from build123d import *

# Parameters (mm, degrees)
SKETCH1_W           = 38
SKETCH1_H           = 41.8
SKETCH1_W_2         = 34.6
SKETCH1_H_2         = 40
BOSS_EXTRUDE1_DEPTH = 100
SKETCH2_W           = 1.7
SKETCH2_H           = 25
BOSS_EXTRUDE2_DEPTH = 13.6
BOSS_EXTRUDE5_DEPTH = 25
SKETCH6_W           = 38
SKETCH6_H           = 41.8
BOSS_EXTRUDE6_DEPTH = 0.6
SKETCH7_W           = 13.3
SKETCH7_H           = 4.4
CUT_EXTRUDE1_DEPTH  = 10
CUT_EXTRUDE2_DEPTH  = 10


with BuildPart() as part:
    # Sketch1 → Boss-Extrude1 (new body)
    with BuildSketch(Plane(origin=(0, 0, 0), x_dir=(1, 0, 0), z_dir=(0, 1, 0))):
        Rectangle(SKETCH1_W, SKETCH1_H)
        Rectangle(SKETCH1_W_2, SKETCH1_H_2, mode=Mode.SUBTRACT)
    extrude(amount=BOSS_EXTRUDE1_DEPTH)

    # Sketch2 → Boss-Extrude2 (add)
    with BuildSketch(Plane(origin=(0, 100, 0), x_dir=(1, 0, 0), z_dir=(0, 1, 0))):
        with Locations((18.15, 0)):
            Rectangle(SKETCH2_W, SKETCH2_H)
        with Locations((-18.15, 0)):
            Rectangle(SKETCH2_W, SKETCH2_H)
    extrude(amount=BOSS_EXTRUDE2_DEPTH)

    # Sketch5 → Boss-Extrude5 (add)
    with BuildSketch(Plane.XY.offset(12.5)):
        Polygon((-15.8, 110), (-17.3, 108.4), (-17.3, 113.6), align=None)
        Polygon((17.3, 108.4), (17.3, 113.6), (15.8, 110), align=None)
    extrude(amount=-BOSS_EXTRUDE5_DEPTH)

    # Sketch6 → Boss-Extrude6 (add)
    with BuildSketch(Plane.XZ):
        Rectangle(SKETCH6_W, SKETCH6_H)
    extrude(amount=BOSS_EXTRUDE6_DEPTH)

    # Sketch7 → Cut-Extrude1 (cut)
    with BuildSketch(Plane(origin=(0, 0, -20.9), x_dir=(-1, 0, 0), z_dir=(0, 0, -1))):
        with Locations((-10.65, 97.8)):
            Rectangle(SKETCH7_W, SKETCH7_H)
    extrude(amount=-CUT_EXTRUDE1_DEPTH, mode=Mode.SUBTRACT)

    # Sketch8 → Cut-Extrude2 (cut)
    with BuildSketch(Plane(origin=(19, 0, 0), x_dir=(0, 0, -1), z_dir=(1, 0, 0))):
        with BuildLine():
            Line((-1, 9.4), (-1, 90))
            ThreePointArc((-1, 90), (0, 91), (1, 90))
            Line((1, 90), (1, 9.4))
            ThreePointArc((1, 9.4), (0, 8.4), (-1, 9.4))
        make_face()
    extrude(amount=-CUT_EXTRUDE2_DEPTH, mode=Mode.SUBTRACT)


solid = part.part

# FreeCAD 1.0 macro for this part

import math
import FreeCAD as App
import Part
import Sketcher

doc = App.newDocument("Part")
body = doc.addObject("PartDesign::Body", "Body")

# Sketch on XZ plane
sketch1 = body.newObject("Sketcher::SketchObject", "Sketch")
sketch1.AttachmentSupport = (doc.getObject("XZ_Plane"), [""])
sketch1.MapMode = "FlatFace"
sketch1.addGeometry(Part.LineSegment(App.Vector(-19, -21, 0), App.Vector(-19, 21, 0)), False)
sketch1.addGeometry(Part.LineSegment(App.Vector(-19, 21, 0), App.Vector(19, 21, 0)), False)
sketch1.addGeometry(Part.LineSegment(App.Vector(19, 21, 0), App.Vector(19, -21, 0)), False)
sketch1.addGeometry(Part.LineSegment(App.Vector(19, -21, 0), App.Vector(-19, -21, 0)), False)
sketch1.addGeometry(Part.LineSegment(App.Vector(17, 20, 0), App.Vector(-17, 20, 0)), False)
sketch1.addGeometry(Part.LineSegment(App.Vector(-17, 20, 0), App.Vector(-17, -20, 0)), False)
sketch1.addGeometry(Part.LineSegment(App.Vector(-17, -20, 0), App.Vector(17, -20, 0)), False)
sketch1.addGeometry(Part.LineSegment(App.Vector(17, -20, 0), App.Vector(17, 20, 0)), False)
sketch1.addConstraint(Sketcher.Constraint("Coincident", 0, 2, 1, 1))
sketch1.addConstraint(Sketcher.Constraint("Coincident", 1, 2, 2, 1))
sketch1.addConstraint(Sketcher.Constraint("Coincident", 2, 2, 3, 1))
sketch1.addConstraint(Sketcher.Constraint("Coincident", 3, 2, 0, 1))
sketch1.addConstraint(Sketcher.Constraint("Coincident", 4, 2, 5, 1))
sketch1.addConstraint(Sketcher.Constraint("Coincident", 5, 2, 6, 1))
sketch1.addConstraint(Sketcher.Constraint("Coincident", 6, 2, 7, 1))
sketch1.addConstraint(Sketcher.Constraint("Coincident", 7, 2, 4, 1))
sketch1.addConstraint(Sketcher.Constraint("Vertical", 0))
sketch1.addConstraint(Sketcher.Constraint("Horizontal", 1))
sketch1.addConstraint(Sketcher.Constraint("Vertical", 2))
sketch1.addConstraint(Sketcher.Constraint("Horizontal", 3))
sketch1.addConstraint(Sketcher.Constraint("Horizontal", 4))
sketch1.addConstraint(Sketcher.Constraint("Vertical", 5))
sketch1.addConstraint(Sketcher.Constraint("Horizontal", 6))
sketch1.addConstraint(Sketcher.Constraint("Vertical", 7))
sketch1.addConstraint(Sketcher.Constraint("Symmetric", 0, 2, 2, 2, -1, 1))
sketch1.addConstraint(Sketcher.Constraint("Symmetric", 4, 2, 6, 2, -1, 1))
sketch1.addConstraint(Sketcher.Constraint("DistanceX", 1, 1, 1, 2, 38.0))
sketch1.addConstraint(Sketcher.Constraint("DistanceY", 5, 2, 5, 1, 40.0))
sketch1.addConstraint(Sketcher.Constraint("DistanceX", 4, 2, 4, 1, 34.6))
sketch1.addConstraint(Sketcher.Constraint("DistanceY", 0, 1, 0, 2, 41.8))
pad1 = body.newObject("PartDesign::Pad", "Pad")
pad1.Profile = sketch1
pad1.Length = 100
pad1.Reversed = True

# Sketch on XZ plane
sketch2 = body.newObject("Sketcher::SketchObject", "Sketch001")
sketch2.AttachmentSupport = (doc.getObject("XZ_Plane"), [""])
sketch2.MapMode = "FlatFace"
sketch2.AttachmentOffset = App.Placement(App.Vector(0, 0, -100), App.Rotation())
sketch2.addGeometry(Part.LineSegment(App.Vector(17.3, -12.5, 0), App.Vector(17.3, 12.5, 0)), False)
sketch2.addGeometry(Part.LineSegment(App.Vector(17.3, 12.5, 0), App.Vector(19, 12.5, 0)), False)
sketch2.addGeometry(Part.LineSegment(App.Vector(19, 12.5, 0), App.Vector(19, -12.5, 0)), False)
sketch2.addGeometry(Part.LineSegment(App.Vector(19, -12.5, 0), App.Vector(17.3, -12.5, 0)), False)
sketch2.addGeometry(Part.LineSegment(App.Vector(-19, -12.5, 0), App.Vector(-19, 12.5, 0)), False)
sketch2.addGeometry(Part.LineSegment(App.Vector(-19, 12.5, 0), App.Vector(-17.3, 12.5, 0)), False)
sketch2.addGeometry(Part.LineSegment(App.Vector(-17.3, 12.5, 0), App.Vector(-17.3, -12.5, 0)), False)
sketch2.addGeometry(Part.LineSegment(App.Vector(-17.3, -12.5, 0), App.Vector(-19, -12.5, 0)), False)
sketch2.addConstraint(Sketcher.Constraint("Coincident", 0, 2, 1, 1))
sketch2.addConstraint(Sketcher.Constraint("Coincident", 1, 2, 2, 1))
sketch2.addConstraint(Sketcher.Constraint("Coincident", 2, 2, 3, 1))
sketch2.addConstraint(Sketcher.Constraint("Coincident", 3, 2, 0, 1))
sketch2.addConstraint(Sketcher.Constraint("Coincident", 4, 2, 5, 1))
sketch2.addConstraint(Sketcher.Constraint("Coincident", 5, 2, 6, 1))
sketch2.addConstraint(Sketcher.Constraint("Coincident", 6, 2, 7, 1))
sketch2.addConstraint(Sketcher.Constraint("Coincident", 7, 2, 4, 1))
sketch2.addConstraint(Sketcher.Constraint("Vertical", 0))
sketch2.addConstraint(Sketcher.Constraint("Horizontal", 1))
sketch2.addConstraint(Sketcher.Constraint("Vertical", 2))
sketch2.addConstraint(Sketcher.Constraint("Horizontal", 3))
sketch2.addConstraint(Sketcher.Constraint("Vertical", 4))
sketch2.addConstraint(Sketcher.Constraint("Horizontal", 5))
sketch2.addConstraint(Sketcher.Constraint("Vertical", 6))
sketch2.addConstraint(Sketcher.Constraint("Horizontal", 7))
sketch2.addConstraint(Sketcher.Constraint("Symmetric", 2, 2, 4, 2, -1, 1))
sketch2.addConstraint(Sketcher.Constraint("Symmetric", 0, 2, 6, 2, -1, 1))
sketch2.addConstraint(Sketcher.Constraint("Horizontal", 1, 2, 4, 2))
sketch2.addConstraint(Sketcher.Constraint("DistanceY", 0, 1, 0, 2, 25.0))
sketch2.addConstraint(Sketcher.Constraint("DistanceX", 1, 1, 1, 2, 1.7))
sketch2.addConstraint(Sketcher.Constraint("DistanceX", -1, 1, 1, 2, 19.0))
pad2 = body.newObject("PartDesign::Pad", "Pad001")
pad2.Profile = sketch2
pad2.Length = 13.6
pad2.Reversed = True

# Sketch on XY plane
sketch3 = body.newObject("Sketcher::SketchObject", "Sketch002")
sketch3.AttachmentSupport = (doc.getObject("XY_Plane"), [""])
sketch3.MapMode = "FlatFace"
sketch3.AttachmentOffset = App.Placement(App.Vector(0, 0, 12.5), App.Rotation())
sketch3.addGeometry(Part.LineSegment(App.Vector(-17.3, 108.4, 0), App.Vector(-15.8, 110, 0)), False)
sketch3.addGeometry(Part.LineSegment(App.Vector(-15.8, 110, 0), App.Vector(-17.3, 113.6, 0)), False)
sketch3.addGeometry(Part.LineSegment(App.Vector(-17.3, 113.6, 0), App.Vector(-17.3, 108.4, 0)), False)
sketch3.addGeometry(Part.LineSegment(App.Vector(17.3, 108.4, 0), App.Vector(17.3, 113.6, 0)), False)
sketch3.addGeometry(Part.LineSegment(App.Vector(17.3, 113.6, 0), App.Vector(15.8, 110, 0)), False)
sketch3.addGeometry(Part.LineSegment(App.Vector(15.8, 110, 0), App.Vector(17.3, 108.4, 0)), False)
sketch3.addConstraint(Sketcher.Constraint("Coincident", 0, 2, 1, 1))
sketch3.addConstraint(Sketcher.Constraint("Coincident", 1, 2, 2, 1))
sketch3.addConstraint(Sketcher.Constraint("Coincident", 2, 2, 0, 1))
sketch3.addConstraint(Sketcher.Constraint("Coincident", 3, 2, 4, 1))
sketch3.addConstraint(Sketcher.Constraint("Coincident", 4, 2, 5, 1))
sketch3.addConstraint(Sketcher.Constraint("Coincident", 5, 2, 3, 1))
sketch3.addConstraint(Sketcher.Constraint("Vertical", 2))
sketch3.addConstraint(Sketcher.Constraint("Vertical", 3))
sketch3.addConstraint(Sketcher.Constraint("Symmetric", 1, 2, 3, 2, -2))
sketch3.addConstraint(Sketcher.Constraint("Symmetric", 0, 2, 4, 2, -2))
sketch3.addConstraint(Sketcher.Constraint("Horizontal", 2, 2, 5, 2))
sketch3.addConstraint(Sketcher.Constraint("DistanceY", 2, 2, 2, 1, 5.2))
sketch3.addConstraint(Sketcher.Constraint("DistanceY", -1, 1, 0, 2, 110.0))
sketch3.addConstraint(Sketcher.Constraint("Distance", 1, 3.9))
sketch3.addConstraint(Sketcher.Constraint("DistanceX", 0, 2, -1, 1, 15.8))
sketch3.addConstraint(Sketcher.Constraint("DistanceX", 1, 2, -1, 1, 17.3))
pad3 = body.newObject("PartDesign::Pad", "Pad002")
pad3.Profile = sketch3
pad3.Length = 25
pad3.Reversed = True

# Sketch on XZ plane
sketch4 = body.newObject("Sketcher::SketchObject", "Sketch003")
sketch4.AttachmentSupport = (doc.getObject("XZ_Plane"), [""])
sketch4.MapMode = "FlatFace"
sketch4.addGeometry(Part.LineSegment(App.Vector(-19, 21, 0), App.Vector(-19, -21, 0)), False)
sketch4.addGeometry(Part.LineSegment(App.Vector(-19, -21, 0), App.Vector(19, -21, 0)), False)
sketch4.addGeometry(Part.LineSegment(App.Vector(19, -21, 0), App.Vector(19, 21, 0)), False)
sketch4.addGeometry(Part.LineSegment(App.Vector(19, 21, 0), App.Vector(-19, 21, 0)), False)
sketch4.addConstraint(Sketcher.Constraint("Coincident", 0, 2, 1, 1))
sketch4.addConstraint(Sketcher.Constraint("Coincident", 1, 2, 2, 1))
sketch4.addConstraint(Sketcher.Constraint("Coincident", 2, 2, 3, 1))
sketch4.addConstraint(Sketcher.Constraint("Coincident", 3, 2, 0, 1))
sketch4.addConstraint(Sketcher.Constraint("Vertical", 0))
sketch4.addConstraint(Sketcher.Constraint("Horizontal", 1))
sketch4.addConstraint(Sketcher.Constraint("Vertical", 2))
sketch4.addConstraint(Sketcher.Constraint("Horizontal", 3))
sketch4.addConstraint(Sketcher.Constraint("Symmetric", 0, 2, 2, 2, -1, 1))
sketch4.addConstraint(Sketcher.Constraint("DistanceX", 1, 1, 1, 2, 38.0))
sketch4.addConstraint(Sketcher.Constraint("DistanceY", 0, 2, 0, 1, 41.8))
pad4 = body.newObject("PartDesign::Pad", "Pad003")
pad4.Profile = sketch4
pad4.Length = 0.6

# Sketch on XY plane
sketch5 = body.newObject("Sketcher::SketchObject", "Sketch004")
sketch5.AttachmentSupport = (doc.getObject("XY_Plane"), [""])
sketch5.MapMode = "FlatFace"
sketch5.AttachmentOffset = App.Placement(App.Vector(0, 0, -20.9), App.Rotation())
sketch5.addGeometry(Part.LineSegment(App.Vector(17.3, 100, 0), App.Vector(17.3, 95.6, 0)), False)
sketch5.addGeometry(Part.LineSegment(App.Vector(17.3, 95.6, 0), App.Vector(4, 95.6, 0)), False)
sketch5.addGeometry(Part.LineSegment(App.Vector(4, 95.6, 0), App.Vector(4, 100, 0)), False)
sketch5.addGeometry(Part.LineSegment(App.Vector(4, 100, 0), App.Vector(17.3, 100, 0)), False)
sketch5.addConstraint(Sketcher.Constraint("Coincident", 0, 2, 1, 1))
sketch5.addConstraint(Sketcher.Constraint("Coincident", 1, 2, 2, 1))
sketch5.addConstraint(Sketcher.Constraint("Coincident", 2, 2, 3, 1))
sketch5.addConstraint(Sketcher.Constraint("Coincident", 3, 2, 0, 1))
sketch5.addConstraint(Sketcher.Constraint("Vertical", 0))
sketch5.addConstraint(Sketcher.Constraint("Horizontal", 1))
sketch5.addConstraint(Sketcher.Constraint("Vertical", 2))
sketch5.addConstraint(Sketcher.Constraint("Horizontal", 3))
sketch5.addConstraint(Sketcher.Constraint("DistanceX", 1, 2, 1, 1, 13.3))
sketch5.addConstraint(Sketcher.Constraint("DistanceY", 0, 2, 0, 1, 4.4))
sketch5.addConstraint(Sketcher.Constraint("DistanceX", -1, 1, 1, 2, 4.0))
sketch5.addConstraint(Sketcher.Constraint("DistanceY", -1, 1, 2, 2, 100.0))
pocket1 = body.newObject("PartDesign::Pocket", "Pocket")
pocket1.Profile = sketch5
pocket1.Length = 10
pocket1.Reversed = True

# Sketch on YZ plane
sketch6 = body.newObject("Sketcher::SketchObject", "Sketch005")
sketch6.AttachmentSupport = (doc.getObject("YZ_Plane"), [""])
sketch6.MapMode = "FlatFace"
sketch6.AttachmentOffset = App.Placement(App.Vector(0, 0, 19), App.Rotation())
sketch6.addGeometry(Part.LineSegment(App.Vector(90, 1, 0), App.Vector(9.4, 1, 0)), False)
sketch6.addGeometry(Part.ArcOfCircle(Part.Circle(App.Vector(9.4, 0, 0), App.Vector(0, 0, 1), 1), math.radians(90), math.radians(270)), False)
sketch6.addGeometry(Part.LineSegment(App.Vector(9.4, -1, 0), App.Vector(90, -1, 0)), False)
sketch6.addGeometry(Part.ArcOfCircle(Part.Circle(App.Vector(90, 0, 0), App.Vector(0, 0, 1), 1), math.radians(-90), math.radians(90)), False)
sketch6.addConstraint(Sketcher.Constraint("Tangent", 0, 2, 1, 1))
sketch6.addConstraint(Sketcher.Constraint("Tangent", 1, 2, 2, 1))
sketch6.addConstraint(Sketcher.Constraint("Tangent", 2, 2, 3, 1))
sketch6.addConstraint(Sketcher.Constraint("Tangent", 3, 2, 0, 1))
sketch6.addConstraint(Sketcher.Constraint("Horizontal", 0))
sketch6.addConstraint(Sketcher.Constraint("Horizontal", 2))
sketch6.addConstraint(Sketcher.Constraint("PointOnObject", 1, 3, -1))
sketch6.addConstraint(Sketcher.Constraint("Radius", 1, 1.0))
sketch6.addConstraint(Sketcher.Constraint("DistanceX", 0, 2, 0, 1, 80.6))
sketch6.addConstraint(Sketcher.Constraint("DistanceX", -1, 1, 3, 3, 90.0))
pocket2 = body.newObject("PartDesign::Pocket", "Pocket001")
pocket2.Profile = sketch6
pocket2.Length = 10

doc.recompute()
